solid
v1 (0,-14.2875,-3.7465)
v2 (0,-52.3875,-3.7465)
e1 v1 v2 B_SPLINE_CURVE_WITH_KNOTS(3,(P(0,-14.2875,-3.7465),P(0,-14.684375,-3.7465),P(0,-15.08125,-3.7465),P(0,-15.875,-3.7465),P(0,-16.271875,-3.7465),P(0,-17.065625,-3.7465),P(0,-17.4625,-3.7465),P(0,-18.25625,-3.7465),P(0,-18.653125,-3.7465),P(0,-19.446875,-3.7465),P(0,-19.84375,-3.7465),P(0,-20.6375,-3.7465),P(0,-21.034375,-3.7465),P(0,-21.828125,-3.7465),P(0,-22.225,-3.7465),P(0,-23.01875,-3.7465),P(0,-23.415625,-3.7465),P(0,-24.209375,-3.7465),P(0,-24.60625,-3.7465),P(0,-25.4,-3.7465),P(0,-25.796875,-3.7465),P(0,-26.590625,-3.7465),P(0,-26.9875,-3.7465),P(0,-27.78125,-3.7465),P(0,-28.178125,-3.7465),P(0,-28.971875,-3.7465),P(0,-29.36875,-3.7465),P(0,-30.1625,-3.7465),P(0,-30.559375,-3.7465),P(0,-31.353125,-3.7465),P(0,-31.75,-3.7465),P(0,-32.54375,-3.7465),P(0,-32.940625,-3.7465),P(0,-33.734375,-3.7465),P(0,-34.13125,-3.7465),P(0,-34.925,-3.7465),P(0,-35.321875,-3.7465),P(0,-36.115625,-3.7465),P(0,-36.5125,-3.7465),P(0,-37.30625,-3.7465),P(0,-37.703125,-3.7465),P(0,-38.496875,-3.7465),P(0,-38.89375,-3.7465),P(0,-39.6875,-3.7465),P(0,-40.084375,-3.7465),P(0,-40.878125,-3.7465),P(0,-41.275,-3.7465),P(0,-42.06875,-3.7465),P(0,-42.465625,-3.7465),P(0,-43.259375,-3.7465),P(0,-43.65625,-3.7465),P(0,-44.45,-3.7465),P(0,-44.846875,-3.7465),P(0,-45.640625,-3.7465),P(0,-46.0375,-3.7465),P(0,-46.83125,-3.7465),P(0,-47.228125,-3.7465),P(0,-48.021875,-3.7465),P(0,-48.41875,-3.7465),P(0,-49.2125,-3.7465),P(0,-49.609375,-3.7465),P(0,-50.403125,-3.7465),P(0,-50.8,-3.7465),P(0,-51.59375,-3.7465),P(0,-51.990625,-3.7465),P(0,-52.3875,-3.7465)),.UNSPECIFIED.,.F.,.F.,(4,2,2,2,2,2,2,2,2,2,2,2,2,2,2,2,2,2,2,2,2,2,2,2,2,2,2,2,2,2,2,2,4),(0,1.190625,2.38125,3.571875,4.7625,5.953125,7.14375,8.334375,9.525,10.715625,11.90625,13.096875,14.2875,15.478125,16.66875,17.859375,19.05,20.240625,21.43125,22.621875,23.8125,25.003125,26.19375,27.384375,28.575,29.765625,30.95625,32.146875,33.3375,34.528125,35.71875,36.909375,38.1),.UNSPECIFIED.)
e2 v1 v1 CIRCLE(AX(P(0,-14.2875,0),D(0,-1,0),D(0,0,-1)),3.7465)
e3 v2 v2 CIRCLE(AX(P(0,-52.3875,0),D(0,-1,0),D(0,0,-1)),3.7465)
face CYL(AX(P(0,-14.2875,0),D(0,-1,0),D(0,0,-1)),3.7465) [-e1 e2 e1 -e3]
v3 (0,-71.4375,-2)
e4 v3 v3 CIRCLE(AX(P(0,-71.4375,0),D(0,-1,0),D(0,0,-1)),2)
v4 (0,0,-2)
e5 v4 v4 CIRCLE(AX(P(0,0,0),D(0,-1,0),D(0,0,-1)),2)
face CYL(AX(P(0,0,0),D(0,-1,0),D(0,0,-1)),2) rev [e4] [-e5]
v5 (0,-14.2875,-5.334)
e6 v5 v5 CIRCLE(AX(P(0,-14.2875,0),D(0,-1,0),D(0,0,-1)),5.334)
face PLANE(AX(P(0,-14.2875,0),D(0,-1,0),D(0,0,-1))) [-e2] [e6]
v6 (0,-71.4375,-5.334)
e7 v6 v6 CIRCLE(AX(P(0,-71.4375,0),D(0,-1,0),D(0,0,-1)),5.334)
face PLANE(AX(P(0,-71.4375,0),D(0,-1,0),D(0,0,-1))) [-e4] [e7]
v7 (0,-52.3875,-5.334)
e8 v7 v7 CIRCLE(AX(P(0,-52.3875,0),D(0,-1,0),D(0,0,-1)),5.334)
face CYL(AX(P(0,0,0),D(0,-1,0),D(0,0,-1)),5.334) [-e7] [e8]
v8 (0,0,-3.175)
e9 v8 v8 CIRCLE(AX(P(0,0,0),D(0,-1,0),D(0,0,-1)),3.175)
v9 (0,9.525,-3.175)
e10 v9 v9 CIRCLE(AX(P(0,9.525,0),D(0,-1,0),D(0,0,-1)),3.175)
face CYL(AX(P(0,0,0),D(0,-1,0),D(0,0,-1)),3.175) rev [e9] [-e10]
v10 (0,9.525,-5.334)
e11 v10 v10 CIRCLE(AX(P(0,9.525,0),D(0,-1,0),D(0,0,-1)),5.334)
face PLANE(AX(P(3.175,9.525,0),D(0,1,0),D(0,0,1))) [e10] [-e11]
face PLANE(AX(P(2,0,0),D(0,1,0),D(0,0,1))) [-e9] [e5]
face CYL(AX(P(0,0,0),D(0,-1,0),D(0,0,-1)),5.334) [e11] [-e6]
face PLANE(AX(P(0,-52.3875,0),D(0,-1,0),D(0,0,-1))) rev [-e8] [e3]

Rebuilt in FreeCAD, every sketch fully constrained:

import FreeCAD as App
import Part
import Sketcher
Q = App.Units.Quantity


def add_polygon(sketch, points):
    """Adds a closed chain of lines whose ends are joined by coincident constraints."""
    first, n = sketch.GeometryCount, len(points)
    for a, b in zip(points, points[1:] + points[:1]):
        sketch.addGeometry(Part.LineSegment(App.Vector(*a, 0), App.Vector(*b, 0)), False)
    for i in range(n):
        sketch.addConstraint(Sketcher.Constraint("Coincident", first + i, 2, first + (i + 1) % n, 1))

doc = App.newDocument("Part")
body = doc.addObject("PartDesign::Body", "Body")

# Sketch on XY plane
sketch1 = body.newObject("Sketcher::SketchObject", "Sketch")
sketch1.AttachmentSupport = (doc.getObject("XY_Plane"), [""])
sketch1.MapMode = "FlatFace"
add_polygon(sketch1, [(3.2, 0), (2, 0), (2, -9.5), (5.3, -9.5), (5.3, 9.5), (3.2, 9.5)])  # lines 0-5
sketch1.addConstraint([
    Sketcher.Constraint("Horizontal", 0),
    Sketcher.Constraint("Vertical", 1),
    Sketcher.Constraint("Horizontal", 2),
    Sketcher.Constraint("Vertical", 3),
    Sketcher.Constraint("Horizontal", 4),
    Sketcher.Constraint("Vertical", 5),
    Sketcher.Constraint("PointOnObject", 0, 2, -1),
    Sketcher.Constraint("Equal", 1, 5),
    Sketcher.Constraint("DistanceY", 3, 1, 3, 2, Q("0.75 in")),
    Sketcher.Constraint("DistanceX", 4, 2, 4, 1, Q("0.085 in")),
    Sketcher.Constraint("DistanceX", -1, 1, 2, 2, Q("0.21 in")),
    Sketcher.Constraint("DistanceX", 0, 2, 0, 1, 1.175),
])
revolution = body.newObject("PartDesign::Revolution", "Revolution")
revolution.Profile = sketch1
revolution.ReferenceAxis = (sketch1, ["V_Axis"])
revolution.Angle = 360

# Sketch on XZ plane
sketch2 = body.newObject("Sketcher::SketchObject", "Sketch001")
sketch2.AttachmentSupport = (doc.getObject("XZ_Plane"), [""])
sketch2.MapMode = "FlatFace"
sketch2.AttachmentOffset = App.Placement(App.Vector(0, 0, 0.375 * 25.4), App.Rotation())
sketch2.addGeometry([
    Part.Circle(App.Vector(0, 0, 0), App.Vector(0, 0, 1), 5.3),
    Part.Circle(App.Vector(0, 0, 0), App.Vector(0, 0, 1), 2),
], False)
sketch2.addConstraint([
    Sketcher.Constraint("Coincident", 0, 3, -1, 1),
    Sketcher.Constraint("Coincident", 1, 3, -1, 1),
    Sketcher.Constraint("Diameter", 0, Q("0.42 in")),
    Sketcher.Constraint("Diameter", 1, 4.0),
])
pad1 = body.newObject("PartDesign::Pad", "Pad")
pad1.Profile = sketch2
pad1.Length = Q("2.4375 in")

# Sketch on XZ plane
sketch3 = body.newObject("Sketcher::SketchObject", "Sketch002")
sketch3.AttachmentSupport = (doc.getObject("XZ_Plane"), [""])
sketch3.MapMode = "FlatFace"
sketch3.AttachmentOffset = App.Placement(App.Vector(0, 0, 2.0625 * 25.4), App.Rotation())
sketch3.addGeometry([
    Part.Circle(App.Vector(0, 0, 0), App.Vector(0, 0, 1), 5.3),
    Part.Circle(App.Vector(0, 0, 0), App.Vector(0, 0, 1), 3.7),
], False)
sketch3.addConstraint([
    Sketcher.Constraint("Coincident", 0, 3, -1, 1),
    Sketcher.Constraint("Coincident", 1, 3, -1, 1),
    Sketcher.Constraint("Diameter", 0, Q("0.42 in")),
    Sketcher.Constraint("Diameter", 1, Q("0.295 in")),
])
pocket1 = body.newObject("PartDesign::Pocket", "Pocket")
pocket1.Profile = sketch3
pocket1.Length = Q("1.5 in")

doc.recompute()
